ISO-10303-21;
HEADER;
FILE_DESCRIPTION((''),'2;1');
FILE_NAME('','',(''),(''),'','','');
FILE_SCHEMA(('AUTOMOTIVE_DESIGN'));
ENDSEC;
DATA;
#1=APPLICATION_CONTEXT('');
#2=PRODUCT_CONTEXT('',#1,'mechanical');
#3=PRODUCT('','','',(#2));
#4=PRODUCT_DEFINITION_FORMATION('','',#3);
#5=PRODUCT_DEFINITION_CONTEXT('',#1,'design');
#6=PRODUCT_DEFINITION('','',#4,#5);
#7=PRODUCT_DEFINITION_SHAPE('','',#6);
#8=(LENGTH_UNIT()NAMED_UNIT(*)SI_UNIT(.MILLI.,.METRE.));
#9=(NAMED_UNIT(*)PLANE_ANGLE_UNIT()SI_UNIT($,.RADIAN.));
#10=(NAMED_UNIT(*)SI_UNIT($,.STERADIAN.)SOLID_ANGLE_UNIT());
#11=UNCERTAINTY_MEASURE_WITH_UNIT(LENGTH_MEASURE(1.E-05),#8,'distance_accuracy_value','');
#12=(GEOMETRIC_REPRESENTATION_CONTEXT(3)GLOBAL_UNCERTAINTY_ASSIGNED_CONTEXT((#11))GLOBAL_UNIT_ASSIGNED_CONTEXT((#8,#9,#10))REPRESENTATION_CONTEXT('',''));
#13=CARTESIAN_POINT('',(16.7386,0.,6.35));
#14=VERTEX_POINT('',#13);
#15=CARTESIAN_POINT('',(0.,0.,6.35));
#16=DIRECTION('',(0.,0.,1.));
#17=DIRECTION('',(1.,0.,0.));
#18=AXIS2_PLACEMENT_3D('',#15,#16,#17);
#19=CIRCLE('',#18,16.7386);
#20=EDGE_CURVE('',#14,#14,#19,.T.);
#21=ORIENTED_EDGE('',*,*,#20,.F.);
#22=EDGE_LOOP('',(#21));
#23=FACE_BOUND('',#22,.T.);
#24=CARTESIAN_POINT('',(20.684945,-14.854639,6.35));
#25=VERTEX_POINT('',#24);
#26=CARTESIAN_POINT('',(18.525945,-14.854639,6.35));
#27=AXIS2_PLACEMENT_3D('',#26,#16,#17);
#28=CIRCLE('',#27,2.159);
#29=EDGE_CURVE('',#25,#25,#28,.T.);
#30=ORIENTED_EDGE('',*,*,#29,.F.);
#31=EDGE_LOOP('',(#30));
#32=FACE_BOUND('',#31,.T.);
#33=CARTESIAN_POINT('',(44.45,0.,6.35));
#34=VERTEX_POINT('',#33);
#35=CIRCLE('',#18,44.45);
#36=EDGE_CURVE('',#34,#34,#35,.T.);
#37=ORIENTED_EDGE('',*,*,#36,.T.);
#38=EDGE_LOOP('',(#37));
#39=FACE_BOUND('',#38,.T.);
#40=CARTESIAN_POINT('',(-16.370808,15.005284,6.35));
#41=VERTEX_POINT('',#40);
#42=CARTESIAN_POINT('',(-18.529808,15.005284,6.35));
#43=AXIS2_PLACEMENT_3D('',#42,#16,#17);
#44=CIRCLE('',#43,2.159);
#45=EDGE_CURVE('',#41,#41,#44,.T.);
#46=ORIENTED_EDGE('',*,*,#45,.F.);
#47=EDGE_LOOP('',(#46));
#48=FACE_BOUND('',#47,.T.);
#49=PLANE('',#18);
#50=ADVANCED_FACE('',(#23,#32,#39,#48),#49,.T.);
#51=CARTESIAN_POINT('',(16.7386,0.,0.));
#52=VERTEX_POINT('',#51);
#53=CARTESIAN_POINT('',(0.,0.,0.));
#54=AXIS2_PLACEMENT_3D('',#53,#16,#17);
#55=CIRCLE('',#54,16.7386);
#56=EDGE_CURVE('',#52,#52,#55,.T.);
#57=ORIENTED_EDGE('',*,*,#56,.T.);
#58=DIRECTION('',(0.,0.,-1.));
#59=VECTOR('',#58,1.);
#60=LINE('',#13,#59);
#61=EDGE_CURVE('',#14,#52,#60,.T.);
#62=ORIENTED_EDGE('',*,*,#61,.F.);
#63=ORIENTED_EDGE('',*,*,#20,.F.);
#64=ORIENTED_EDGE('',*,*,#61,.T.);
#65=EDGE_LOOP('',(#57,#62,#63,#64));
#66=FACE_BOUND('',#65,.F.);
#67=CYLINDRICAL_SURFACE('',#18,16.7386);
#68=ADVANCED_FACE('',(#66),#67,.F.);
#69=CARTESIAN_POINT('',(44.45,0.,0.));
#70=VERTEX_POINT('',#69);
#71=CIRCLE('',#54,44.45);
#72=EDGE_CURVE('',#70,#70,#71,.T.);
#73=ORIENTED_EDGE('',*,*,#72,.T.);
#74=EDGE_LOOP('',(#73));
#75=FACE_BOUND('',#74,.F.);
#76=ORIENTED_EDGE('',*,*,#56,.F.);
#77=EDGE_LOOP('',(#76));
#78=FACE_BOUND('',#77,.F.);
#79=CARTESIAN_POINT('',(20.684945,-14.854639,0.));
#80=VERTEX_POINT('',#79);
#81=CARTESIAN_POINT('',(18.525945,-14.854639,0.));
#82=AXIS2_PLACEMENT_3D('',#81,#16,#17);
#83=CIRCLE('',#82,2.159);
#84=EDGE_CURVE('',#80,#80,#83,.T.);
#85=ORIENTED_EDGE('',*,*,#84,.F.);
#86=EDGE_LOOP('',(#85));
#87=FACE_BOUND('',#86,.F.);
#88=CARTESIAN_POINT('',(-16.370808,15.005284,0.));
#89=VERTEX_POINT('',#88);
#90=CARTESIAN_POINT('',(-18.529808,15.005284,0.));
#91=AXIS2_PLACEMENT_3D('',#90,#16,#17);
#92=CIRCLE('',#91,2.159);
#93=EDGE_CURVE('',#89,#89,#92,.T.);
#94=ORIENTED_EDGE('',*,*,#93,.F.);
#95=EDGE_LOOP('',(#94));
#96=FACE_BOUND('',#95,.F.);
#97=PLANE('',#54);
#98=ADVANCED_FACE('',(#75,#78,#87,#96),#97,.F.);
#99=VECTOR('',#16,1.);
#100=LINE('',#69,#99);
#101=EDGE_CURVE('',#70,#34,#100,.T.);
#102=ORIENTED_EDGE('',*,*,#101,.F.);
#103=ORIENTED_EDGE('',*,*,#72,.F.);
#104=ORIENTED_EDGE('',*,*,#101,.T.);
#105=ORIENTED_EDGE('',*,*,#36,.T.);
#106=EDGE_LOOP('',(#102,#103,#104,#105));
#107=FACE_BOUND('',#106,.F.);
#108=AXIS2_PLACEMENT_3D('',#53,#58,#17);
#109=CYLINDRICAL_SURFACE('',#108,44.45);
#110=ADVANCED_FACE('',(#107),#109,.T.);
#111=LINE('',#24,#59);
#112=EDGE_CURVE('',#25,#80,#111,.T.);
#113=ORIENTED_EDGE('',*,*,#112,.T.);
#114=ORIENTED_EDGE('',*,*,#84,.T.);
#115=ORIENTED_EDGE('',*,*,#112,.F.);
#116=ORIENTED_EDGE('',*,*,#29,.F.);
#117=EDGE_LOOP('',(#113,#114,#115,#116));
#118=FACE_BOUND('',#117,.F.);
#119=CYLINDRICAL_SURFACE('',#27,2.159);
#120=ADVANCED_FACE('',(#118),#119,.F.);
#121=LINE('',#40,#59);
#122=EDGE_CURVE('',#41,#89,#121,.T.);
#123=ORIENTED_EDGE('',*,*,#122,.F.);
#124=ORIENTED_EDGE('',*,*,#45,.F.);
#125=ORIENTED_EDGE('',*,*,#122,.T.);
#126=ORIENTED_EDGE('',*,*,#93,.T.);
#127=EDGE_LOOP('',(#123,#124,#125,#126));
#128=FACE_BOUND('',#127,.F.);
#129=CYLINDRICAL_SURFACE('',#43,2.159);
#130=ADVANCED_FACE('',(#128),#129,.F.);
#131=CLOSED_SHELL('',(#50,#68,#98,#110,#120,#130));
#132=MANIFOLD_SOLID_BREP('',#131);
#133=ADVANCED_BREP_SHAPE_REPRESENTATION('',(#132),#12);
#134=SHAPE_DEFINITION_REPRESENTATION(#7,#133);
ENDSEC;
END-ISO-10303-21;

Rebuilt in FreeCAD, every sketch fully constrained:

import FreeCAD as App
import Part
import Sketcher

V = App.Vector
Q = App.Units.Quantity

doc = App.newDocument("Part")
body = doc.addObject("PartDesign::Body", "Body")

sketch1 = body.newObject("Sketcher::SketchObject", "Sketch")
sketch1.AttachmentSupport = (doc.getObject("XY_Plane"), [""])
sketch1.MapMode = "FlatFace"
sketch1.addGeometry(Part.Circle(V(0, 0, 0), V(0, 0, 1), 44.45), False)
sketch1.addConstraint([
    Sketcher.Constraint("Coincident", 0, 3, -1, 1),
    Sketcher.Constraint("Diameter", 0, Q("3.5 in")),
])
pad1 = body.newObject("PartDesign::Pad", "Pad")
pad1.Profile = sketch1
pad1.Length = Q("0.25 in")

sketch2 = body.newObject("Sketcher::SketchObject", "Sketch001")
sketch2.AttachmentSupport = (doc.getObject("XY_Plane"), [""])
sketch2.MapMode = "FlatFace"
sketch2.AttachmentOffset = App.Placement(V(0, 0, 0.25 * 25.4), App.Rotation())
sketch2.addGeometry(Part.Circle(V(0, 0, 0), V(0, 0, 1), 16.7386), False)
sketch2.addConstraint([
    Sketcher.Constraint("Coincident", 0, 3, -1, 1),
    Sketcher.Constraint("Diameter", 0, Q("1.318 in")),
])
pocket1 = body.newObject("PartDesign::Pocket", "Pocket")
pocket1.Profile = sketch2
pocket1.Length = Q("0.25 in")

sketch3 = body.newObject("Sketcher::SketchObject", "Sketch002")
sketch3.AttachmentSupport = (doc.getObject("XY_Plane"), [""])
sketch3.MapMode = "FlatFace"
sketch3.AttachmentOffset = App.Placement(V(0, 0, 0.25 * 25.4), App.Rotation())
sketch3.addGeometry(Part.Circle(V(-18.529808, 15.005284, 0), V(0, 0, 1), 2.159), False)
sketch3.addConstraint([
    Sketcher.Constraint("Diameter", 0, Q("0.17 in")),
    Sketcher.Constraint("DistanceX", 0, 3, -1, 1, Q("18.529808 mm")),
    Sketcher.Constraint("DistanceY", -1, 1, 0, 3, Q("15.005284 mm")),
])
pocket2 = body.newObject("PartDesign::Pocket", "Pocket001")
pocket2.Profile = sketch3
pocket2.Length = Q("0.25 in")

sketch4 = body.newObject("Sketcher::SketchObject", "Sketch003")
sketch4.AttachmentSupport = (doc.getObject("XY_Plane"), [""])
sketch4.MapMode = "FlatFace"
sketch4.AttachmentOffset = App.Placement(V(0, 0, 0.25 * 25.4), App.Rotation())
sketch4.addGeometry(Part.Circle(V(18.525945, -14.854639, 0), V(0, 0, 1), 2.159), False)
sketch4.addConstraint([
    Sketcher.Constraint("Diameter", 0, Q("0.17 in")),
    Sketcher.Constraint("DistanceY", 0, 3, -1, 1, Q("14.854639 mm")),
    Sketcher.Constraint("DistanceX", -1, 1, 0, 3, Q("18.525945 mm")),
])
pocket3 = body.newObject("PartDesign::Pocket", "Pocket002")
pocket3.Profile = sketch4
pocket3.Length = Q("0.25 in")

doc.recompute()
